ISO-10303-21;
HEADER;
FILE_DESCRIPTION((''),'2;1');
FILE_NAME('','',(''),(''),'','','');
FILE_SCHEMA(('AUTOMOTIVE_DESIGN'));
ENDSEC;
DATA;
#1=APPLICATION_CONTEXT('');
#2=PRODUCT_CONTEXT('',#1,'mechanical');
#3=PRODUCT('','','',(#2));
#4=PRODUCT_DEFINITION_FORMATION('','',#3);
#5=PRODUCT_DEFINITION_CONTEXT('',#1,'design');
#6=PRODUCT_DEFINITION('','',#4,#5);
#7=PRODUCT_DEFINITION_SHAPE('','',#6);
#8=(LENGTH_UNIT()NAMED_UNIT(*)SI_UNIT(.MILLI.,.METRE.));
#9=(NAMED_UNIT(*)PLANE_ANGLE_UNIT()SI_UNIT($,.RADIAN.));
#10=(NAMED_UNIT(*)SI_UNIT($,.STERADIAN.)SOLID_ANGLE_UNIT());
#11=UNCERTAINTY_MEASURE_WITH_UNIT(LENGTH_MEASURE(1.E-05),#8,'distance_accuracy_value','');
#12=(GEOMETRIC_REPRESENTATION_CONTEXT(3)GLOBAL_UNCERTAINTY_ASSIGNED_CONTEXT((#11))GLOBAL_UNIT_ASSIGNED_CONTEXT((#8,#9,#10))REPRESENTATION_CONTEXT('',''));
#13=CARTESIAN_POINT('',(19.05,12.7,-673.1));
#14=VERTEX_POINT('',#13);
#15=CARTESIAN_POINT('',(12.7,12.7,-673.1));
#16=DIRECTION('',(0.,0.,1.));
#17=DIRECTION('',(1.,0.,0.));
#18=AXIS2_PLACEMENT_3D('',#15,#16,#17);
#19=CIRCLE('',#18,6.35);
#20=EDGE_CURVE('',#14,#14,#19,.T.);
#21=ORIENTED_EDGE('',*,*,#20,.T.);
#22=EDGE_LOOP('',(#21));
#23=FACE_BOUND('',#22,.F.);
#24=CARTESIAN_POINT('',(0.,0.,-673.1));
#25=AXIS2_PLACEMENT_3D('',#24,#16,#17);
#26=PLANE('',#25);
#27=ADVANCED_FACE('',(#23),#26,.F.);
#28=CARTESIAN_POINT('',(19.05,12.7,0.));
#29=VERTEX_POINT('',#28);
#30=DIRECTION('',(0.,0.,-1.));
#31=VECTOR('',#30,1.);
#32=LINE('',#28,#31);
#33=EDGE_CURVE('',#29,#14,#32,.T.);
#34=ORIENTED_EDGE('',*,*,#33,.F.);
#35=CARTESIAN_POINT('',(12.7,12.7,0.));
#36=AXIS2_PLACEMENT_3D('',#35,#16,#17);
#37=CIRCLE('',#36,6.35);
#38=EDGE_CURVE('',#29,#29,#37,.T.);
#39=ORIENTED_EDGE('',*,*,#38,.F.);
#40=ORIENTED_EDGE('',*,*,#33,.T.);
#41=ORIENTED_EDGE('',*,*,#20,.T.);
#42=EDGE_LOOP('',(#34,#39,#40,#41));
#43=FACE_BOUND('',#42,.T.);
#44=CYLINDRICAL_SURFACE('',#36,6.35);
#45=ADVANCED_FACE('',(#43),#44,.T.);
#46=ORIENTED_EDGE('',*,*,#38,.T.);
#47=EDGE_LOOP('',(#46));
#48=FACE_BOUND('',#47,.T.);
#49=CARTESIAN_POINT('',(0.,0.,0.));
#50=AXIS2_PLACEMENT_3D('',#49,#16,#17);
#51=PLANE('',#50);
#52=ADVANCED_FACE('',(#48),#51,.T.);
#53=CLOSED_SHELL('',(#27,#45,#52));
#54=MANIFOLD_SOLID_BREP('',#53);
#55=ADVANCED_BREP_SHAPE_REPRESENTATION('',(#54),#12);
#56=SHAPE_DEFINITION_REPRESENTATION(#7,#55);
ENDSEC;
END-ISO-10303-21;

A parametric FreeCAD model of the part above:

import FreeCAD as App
import Part
import Sketcher

V = App.Vector
Q = App.Units.Quantity

doc = App.newDocument("Part")
body = doc.addObject("PartDesign::Body", "Body")

# Sketch on XY plane
sketch1 = doc.addObject("Sketcher::SketchObject", "Sketch")
body.addObject(sketch1)
sketch1.AttachmentSupport = (doc.XY_Plane, [""])
sketch1.MapMode = "FlatFace"
sketch1.addGeometry(Part.Circle(V(13, 13, 0), V(0, 0, 1), 6), False)
sketch1.addConstraint(Sketcher.Constraint("Diameter", 0, Q("0.5 in")))
sketch1.addConstraint(Sketcher.Constraint("DistanceX", -1, 1, 0, 3, Q("0.5 in")))
sketch1.addConstraint(Sketcher.Constraint("DistanceY", -1, 1, 0, 3, Q("0.5 in")))
pad1 = doc.addObject("PartDesign::Pad", "Pad")
body.addObject(pad1)
pad1.Profile = sketch1
pad1.Length = Q("26.5 in")
pad1.Reversed = True

doc.recompute()
